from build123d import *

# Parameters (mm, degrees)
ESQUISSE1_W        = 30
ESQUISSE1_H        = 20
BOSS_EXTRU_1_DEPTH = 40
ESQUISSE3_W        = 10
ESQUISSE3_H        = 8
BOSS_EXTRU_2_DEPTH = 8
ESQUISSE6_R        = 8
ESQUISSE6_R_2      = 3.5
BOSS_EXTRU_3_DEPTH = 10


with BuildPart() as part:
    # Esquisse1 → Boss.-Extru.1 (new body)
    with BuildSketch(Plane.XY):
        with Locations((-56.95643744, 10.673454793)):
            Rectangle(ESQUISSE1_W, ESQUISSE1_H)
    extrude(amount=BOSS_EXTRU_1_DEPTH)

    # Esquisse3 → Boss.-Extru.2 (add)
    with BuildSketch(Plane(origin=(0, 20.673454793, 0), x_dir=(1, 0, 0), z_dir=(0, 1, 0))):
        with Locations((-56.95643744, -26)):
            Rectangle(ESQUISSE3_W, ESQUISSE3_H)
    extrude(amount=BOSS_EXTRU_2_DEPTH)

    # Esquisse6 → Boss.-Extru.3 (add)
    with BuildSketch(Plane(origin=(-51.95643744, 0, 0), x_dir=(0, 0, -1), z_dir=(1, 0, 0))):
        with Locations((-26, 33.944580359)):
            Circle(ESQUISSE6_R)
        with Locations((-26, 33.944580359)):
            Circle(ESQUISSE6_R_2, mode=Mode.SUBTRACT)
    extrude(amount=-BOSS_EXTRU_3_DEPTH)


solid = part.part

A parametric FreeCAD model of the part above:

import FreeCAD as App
import Part
import Sketcher

V = App.Vector


def add_polygon(sketch, points):
    """Adds a closed chain of lines whose ends are joined by coincident constraints."""
    first, n = sketch.GeometryCount, len(points)
    for a, b in zip(points, points[1:] + points[:1]):
        sketch.addGeometry(Part.LineSegment(App.Vector(*a, 0), App.Vector(*b, 0)), False)
    for i in range(n):
        sketch.addConstraint(Sketcher.Constraint("Coincident", first + i, 2, first + (i + 1) % n, 1))

doc = App.newDocument("Part")
body = doc.addObject("PartDesign::Body", "Body")

sketch1 = doc.addObject("Sketcher::SketchObject", "Sketch")
body.addObject(sketch1)
sketch1.AttachmentSupport = (doc.XY_Plane, [""])
sketch1.MapMode = "FlatFace"
add_polygon(sketch1, [(-72, 21), (-72, 1), (-42, 1), (-42, 21)])
sketch1.addConstraint([
    Sketcher.Constraint("Vertical", 0),
    Sketcher.Constraint("Horizontal", 1),
    Sketcher.Constraint("Vertical", 2),
    Sketcher.Constraint("Horizontal", 3),
    Sketcher.Constraint("DistanceX", 1, 1, 1, 2, 30.0),
    Sketcher.Constraint("DistanceY", 0, 2, 0, 1, 20.0),
    Sketcher.Constraint("DistanceX", 0, 2, -1, 1, 71.956437),
    Sketcher.Constraint("DistanceY", -1, 1, 0, 2, 0.673455),
])
pad1 = doc.addObject("PartDesign::Pad", "Pad")
body.addObject(pad1)
pad1.Profile = sketch1
pad1.Length = 40

sketch2 = doc.addObject("Sketcher::SketchObject", "Sketch001")
body.addObject(sketch2)
sketch2.AttachmentSupport = (doc.XZ_Plane, [""])
sketch2.MapMode = "FlatFace"
sketch2.AttachmentOffset = App.Placement(V(0, 0, -20.673455), App.Rotation())
add_polygon(sketch2, [(-62, 22), (-62, 30), (-52, 30), (-52, 22)])
sketch2.addConstraint([
    Sketcher.Constraint("Vertical", 0),
    Sketcher.Constraint("Horizontal", 1),
    Sketcher.Constraint("Vertical", 2),
    Sketcher.Constraint("Horizontal", 3),
    Sketcher.Constraint("DistanceX", 1, 1, 1, 2, 10.0),
    Sketcher.Constraint("DistanceY", 0, 1, 0, 2, 8.0),
    Sketcher.Constraint("DistanceY", -1, 1, 0, 2, 30.0),
    Sketcher.Constraint("DistanceX", 0, 2, -1, 1, 61.956437),
])
pad2 = doc.addObject("PartDesign::Pad", "Pad001")
body.addObject(pad2)
pad2.Profile = sketch2
pad2.Length = 8
pad2.Reversed = True

sketch3 = doc.addObject("Sketcher::SketchObject", "Sketch002")
body.addObject(sketch3)
sketch3.AttachmentSupport = (doc.YZ_Plane, [""])
sketch3.MapMode = "FlatFace"
sketch3.AttachmentOffset = App.Placement(V(0, 0, -51.956437), App.Rotation())
sketch3.addGeometry([
    Part.Circle(V(33.9, 26, 0), V(0, 0, 1), 8),
    Part.Circle(V(33.9, 26, 0), V(0, 0, 1), 3.5),
], False)
sketch3.addConstraint([
    Sketcher.Constraint("Coincident", 1, 3, 0, 3),
    Sketcher.Constraint("Diameter", 0, 16.0),
    Sketcher.Constraint("Diameter", 1, 7.0),
    Sketcher.Constraint("DistanceY", -1, 1, 0, 3, 26.0),
    Sketcher.Constraint("DistanceX", -1, 1, 0, 3, 33.94458),
])
pad3 = doc.addObject("PartDesign::Pad", "Pad002")
body.addObject(pad3)
pad3.Profile = sketch3
pad3.Length = 10
pad3.Reversed = True

doc.recompute()
